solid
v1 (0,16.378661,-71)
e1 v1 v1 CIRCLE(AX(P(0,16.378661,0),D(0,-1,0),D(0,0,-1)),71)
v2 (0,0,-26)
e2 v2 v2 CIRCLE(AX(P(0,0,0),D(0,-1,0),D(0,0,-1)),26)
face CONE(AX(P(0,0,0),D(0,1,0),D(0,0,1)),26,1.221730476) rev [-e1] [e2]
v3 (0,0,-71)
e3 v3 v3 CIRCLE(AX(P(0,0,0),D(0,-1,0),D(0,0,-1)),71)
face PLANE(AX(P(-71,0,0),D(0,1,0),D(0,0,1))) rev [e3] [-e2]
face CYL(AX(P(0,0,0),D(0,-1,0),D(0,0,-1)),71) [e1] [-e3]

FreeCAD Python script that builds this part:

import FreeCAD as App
import Part
import Sketcher
from FreeCAD import Vector
Q = App.Units.Quantity


def add_polygon(sketch, points):
    """Adds a closed chain of lines whose ends are joined by coincident constraints."""
    first, n = sketch.GeometryCount, len(points)
    for a, b in zip(points, points[1:] + points[:1]):
        sketch.addGeometry(Part.LineSegment(App.Vector(*a, 0), App.Vector(*b, 0)), False)
    for i in range(n):
        sketch.addConstraint(Sketcher.Constraint("Coincident", first + i, 2, first + (i + 1) % n, 1))

doc = App.newDocument("Part")
body = doc.addObject("PartDesign::Body", "Body")

# Sketch on XY plane
sketch1 = body.newObject("Sketcher::SketchObject", "Sketch")
sketch1.AttachmentSupport = (doc.getObject("XY_Plane"), [""])
sketch1.MapMode = "FlatFace"
add_polygon(sketch1, [(-71, 16.378661), (-71, 0), (-26, 0)])  # lines 0-2
sketch1.addConstraint(Sketcher.Constraint("Vertical", 0))
sketch1.addConstraint(Sketcher.Constraint("Horizontal", 1))
sketch1.addConstraint(Sketcher.Constraint("PointOnObject", 0, 2, -1))
sketch1.addConstraint(Sketcher.Constraint("DistanceX", 1, 1, 1, 2, 45.0))
sketch1.addConstraint(Sketcher.Constraint("Angle", 2, Q("160 deg")))
sketch1.addConstraint(Sketcher.Constraint("DistanceX", 0, 2, -1, 1, 71.0))
revolution = body.newObject("PartDesign::Revolution", "Revolution")
revolution.Profile = sketch1
revolution.ReferenceAxis = (sketch1, ["V_Axis"])
revolution.Angle = 360

doc.recompute()
